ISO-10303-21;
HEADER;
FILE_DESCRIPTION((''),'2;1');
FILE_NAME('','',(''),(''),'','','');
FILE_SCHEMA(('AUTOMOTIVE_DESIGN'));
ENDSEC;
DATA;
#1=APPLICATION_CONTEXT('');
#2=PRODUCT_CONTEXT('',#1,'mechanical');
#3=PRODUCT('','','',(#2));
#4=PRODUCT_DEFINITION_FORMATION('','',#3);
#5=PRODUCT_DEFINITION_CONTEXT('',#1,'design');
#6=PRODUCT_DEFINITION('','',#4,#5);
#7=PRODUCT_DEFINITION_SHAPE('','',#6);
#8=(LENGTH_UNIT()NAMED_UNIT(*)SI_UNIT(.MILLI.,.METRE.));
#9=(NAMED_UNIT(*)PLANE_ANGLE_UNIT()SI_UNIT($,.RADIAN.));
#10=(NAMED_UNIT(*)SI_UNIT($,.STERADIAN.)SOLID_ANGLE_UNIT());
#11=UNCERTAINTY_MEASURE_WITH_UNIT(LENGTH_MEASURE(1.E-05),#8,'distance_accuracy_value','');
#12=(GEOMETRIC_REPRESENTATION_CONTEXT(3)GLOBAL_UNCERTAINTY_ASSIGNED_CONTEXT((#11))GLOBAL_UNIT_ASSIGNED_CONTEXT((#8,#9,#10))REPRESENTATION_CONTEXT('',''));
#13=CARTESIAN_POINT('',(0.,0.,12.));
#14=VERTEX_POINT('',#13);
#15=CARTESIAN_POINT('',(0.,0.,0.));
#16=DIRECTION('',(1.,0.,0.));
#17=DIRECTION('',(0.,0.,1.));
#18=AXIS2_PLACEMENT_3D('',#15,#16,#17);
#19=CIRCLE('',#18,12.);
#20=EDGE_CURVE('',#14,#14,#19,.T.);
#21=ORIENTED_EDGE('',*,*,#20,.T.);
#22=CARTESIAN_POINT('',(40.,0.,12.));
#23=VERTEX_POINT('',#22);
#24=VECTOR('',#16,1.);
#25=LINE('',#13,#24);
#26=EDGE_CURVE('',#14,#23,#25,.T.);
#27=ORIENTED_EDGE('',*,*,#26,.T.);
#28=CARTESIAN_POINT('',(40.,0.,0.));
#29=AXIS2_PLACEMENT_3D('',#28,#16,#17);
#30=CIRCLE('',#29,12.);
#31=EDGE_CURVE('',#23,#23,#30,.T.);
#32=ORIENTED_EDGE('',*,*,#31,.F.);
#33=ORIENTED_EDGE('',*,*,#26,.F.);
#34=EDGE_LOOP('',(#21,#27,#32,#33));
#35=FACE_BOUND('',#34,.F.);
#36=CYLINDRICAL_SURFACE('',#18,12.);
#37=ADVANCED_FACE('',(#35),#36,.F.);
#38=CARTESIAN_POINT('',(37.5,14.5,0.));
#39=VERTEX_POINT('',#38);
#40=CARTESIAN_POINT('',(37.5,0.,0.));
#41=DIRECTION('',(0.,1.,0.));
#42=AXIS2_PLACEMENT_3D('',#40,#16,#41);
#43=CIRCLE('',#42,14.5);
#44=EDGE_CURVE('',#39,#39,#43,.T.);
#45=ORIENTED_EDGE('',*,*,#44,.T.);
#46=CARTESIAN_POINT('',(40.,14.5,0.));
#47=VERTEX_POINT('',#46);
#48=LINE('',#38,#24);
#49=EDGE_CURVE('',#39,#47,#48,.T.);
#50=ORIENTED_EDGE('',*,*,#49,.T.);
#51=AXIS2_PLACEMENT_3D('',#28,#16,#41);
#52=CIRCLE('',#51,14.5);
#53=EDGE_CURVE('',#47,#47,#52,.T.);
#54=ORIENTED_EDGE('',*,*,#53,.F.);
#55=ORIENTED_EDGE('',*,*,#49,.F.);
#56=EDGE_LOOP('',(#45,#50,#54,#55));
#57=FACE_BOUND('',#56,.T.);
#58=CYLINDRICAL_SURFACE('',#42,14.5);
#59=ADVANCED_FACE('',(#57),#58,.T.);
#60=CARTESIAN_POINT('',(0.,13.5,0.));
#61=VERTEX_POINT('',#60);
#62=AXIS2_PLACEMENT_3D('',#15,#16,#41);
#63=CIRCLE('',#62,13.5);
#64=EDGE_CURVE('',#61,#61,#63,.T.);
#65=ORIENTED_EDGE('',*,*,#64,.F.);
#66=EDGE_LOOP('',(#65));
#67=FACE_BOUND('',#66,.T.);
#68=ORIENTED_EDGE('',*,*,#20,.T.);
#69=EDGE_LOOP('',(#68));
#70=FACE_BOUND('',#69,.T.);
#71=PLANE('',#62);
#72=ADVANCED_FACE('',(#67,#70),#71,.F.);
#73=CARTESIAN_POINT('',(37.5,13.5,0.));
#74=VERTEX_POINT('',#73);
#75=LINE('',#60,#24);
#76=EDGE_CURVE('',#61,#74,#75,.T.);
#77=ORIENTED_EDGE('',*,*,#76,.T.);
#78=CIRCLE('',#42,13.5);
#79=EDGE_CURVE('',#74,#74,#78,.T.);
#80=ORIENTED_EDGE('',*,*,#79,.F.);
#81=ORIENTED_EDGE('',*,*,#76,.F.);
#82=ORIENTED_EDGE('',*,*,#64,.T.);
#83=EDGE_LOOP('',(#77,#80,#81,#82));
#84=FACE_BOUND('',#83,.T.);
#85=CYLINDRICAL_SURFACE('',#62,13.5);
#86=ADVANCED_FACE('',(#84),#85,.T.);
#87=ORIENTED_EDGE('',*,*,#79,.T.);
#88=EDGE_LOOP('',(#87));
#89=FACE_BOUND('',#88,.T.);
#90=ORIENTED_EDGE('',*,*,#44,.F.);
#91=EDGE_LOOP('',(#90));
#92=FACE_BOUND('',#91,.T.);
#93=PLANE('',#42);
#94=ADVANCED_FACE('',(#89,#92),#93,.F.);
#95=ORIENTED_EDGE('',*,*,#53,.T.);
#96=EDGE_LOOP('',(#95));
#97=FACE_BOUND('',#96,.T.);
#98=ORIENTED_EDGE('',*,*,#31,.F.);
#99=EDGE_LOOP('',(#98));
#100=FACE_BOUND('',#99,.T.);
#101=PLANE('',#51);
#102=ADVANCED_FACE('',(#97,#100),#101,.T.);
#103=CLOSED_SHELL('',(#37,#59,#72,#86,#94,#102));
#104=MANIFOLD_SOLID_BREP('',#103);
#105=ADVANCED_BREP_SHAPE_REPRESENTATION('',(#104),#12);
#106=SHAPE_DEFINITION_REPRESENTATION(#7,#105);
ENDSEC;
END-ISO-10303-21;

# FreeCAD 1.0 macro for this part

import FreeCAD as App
import Part
import Sketcher
from FreeCAD import Vector

doc = App.newDocument("Part")
params = doc.addObject("Spreadsheet::Sheet", "Params")
for row, (alias, value) in enumerate([
    ("sketch1_width", "2.5 mm"),
    ("sketch1_width2", "37.5 mm"),
    ("sketch1_height", "1 mm"),
    ("sketch1_height2", "13.5 mm"),
    ("revolution_angle", "360 deg"),
    ("sketch2_diameter", "24 mm"),
    ("hole_diameter", "24 mm"),
], start=1):
    params.set(f"A{row}", alias)
    params.set(f"B{row}", "=" + value)
    params.setAlias(f"B{row}", alias)

body = doc.addObject("PartDesign::Body", "Body")

# Sketch on XY plane
sketch1 = doc.addObject("Sketcher::SketchObject", "Sketch")
body.addObject(sketch1)
sketch1.AttachmentSupport = (doc.XY_Plane, [""])
sketch1.MapMode = "FlatFace"
sketch1.addGeometry([
    Part.LineSegment(Vector(0, 13.5, 0), Vector(0, 0, 0)),  # 0
    Part.LineSegment(Vector(0, 0, 0), Vector(40, 0, 0)),  # 1
    Part.LineSegment(Vector(40, 0, 0), Vector(40, 14.5, 0)),  # 2
    Part.LineSegment(Vector(40, 14.5, 0), Vector(37.5, 14.5, 0)),  # 3
    Part.LineSegment(Vector(37.5, 14.5, 0), Vector(37.5, 13.5, 0)),  # 4
    Part.LineSegment(Vector(37.5, 13.5, 0), Vector(0, 13.5, 0)),  # 5
], False)
sketch1.addConstraint([
    Sketcher.Constraint("Coincident", 0, 2, 1, 1),
    Sketcher.Constraint("Coincident", 1, 2, 2, 1),
    Sketcher.Constraint("Coincident", 2, 2, 3, 1),
    Sketcher.Constraint("Coincident", 3, 2, 4, 1),
    Sketcher.Constraint("Coincident", 4, 2, 5, 1),
    Sketcher.Constraint("Coincident", 5, 2, 0, 1),
    Sketcher.Constraint("Vertical", 0),
    Sketcher.Constraint("Horizontal", 1),
    Sketcher.Constraint("Vertical", 2),
    Sketcher.Constraint("Horizontal", 3),
    Sketcher.Constraint("Vertical", 4),
    Sketcher.Constraint("Horizontal", 5),
    Sketcher.Constraint("Coincident", 0, 2, -1, 1),
    Sketcher.Constraint("DistanceX", 3, 2, 3, 1, 2.5),
    Sketcher.Constraint("DistanceX", 5, 2, 5, 1, 37.5),
    Sketcher.Constraint("DistanceY", 4, 2, 4, 1, 1.0),
    Sketcher.Constraint("DistanceY", 0, 2, 0, 1, 13.5),
])
sketch1.setExpression("Constraints[13]", "Params.sketch1_width")
sketch1.setExpression("Constraints[14]", "Params.sketch1_width2")
sketch1.setExpression("Constraints[15]", "Params.sketch1_height")
sketch1.setExpression("Constraints[16]", "Params.sketch1_height2")
revolution = doc.addObject("PartDesign::Revolution", "Revolution")
body.addObject(revolution)
revolution.Profile = sketch1
revolution.ReferenceAxis = (sketch1, ["H_Axis"])
revolution.setExpression("Angle", "Params.revolution_angle")

# Sketch on YZ plane
sketch2 = doc.addObject("Sketcher::SketchObject", "Sketch001")
body.addObject(sketch2)
sketch2.AttachmentSupport = (doc.YZ_Plane, [""])
sketch2.MapMode = "FlatFace"
sketch2.addGeometry(Part.Circle(Vector(0, 0, 0), Vector(0, 0, 1), 12), False)
sketch2.addConstraint([
    Sketcher.Constraint("Coincident", 0, 3, -1, 1),
    Sketcher.Constraint("Diameter", 0, 24.0),
])
sketch2.setExpression("Constraints[1]", "Params.sketch2_diameter")
doc.recompute()
hole = doc.addObject("PartDesign::Hole", "Hole")
body.addObject(hole)
hole.Profile = sketch2
hole.ThreadType = "None"
hole.setExpression("Diameter", "Params.hole_diameter")
hole.DepthType = "ThroughAll"
hole.Reversed = True

doc.recompute()
